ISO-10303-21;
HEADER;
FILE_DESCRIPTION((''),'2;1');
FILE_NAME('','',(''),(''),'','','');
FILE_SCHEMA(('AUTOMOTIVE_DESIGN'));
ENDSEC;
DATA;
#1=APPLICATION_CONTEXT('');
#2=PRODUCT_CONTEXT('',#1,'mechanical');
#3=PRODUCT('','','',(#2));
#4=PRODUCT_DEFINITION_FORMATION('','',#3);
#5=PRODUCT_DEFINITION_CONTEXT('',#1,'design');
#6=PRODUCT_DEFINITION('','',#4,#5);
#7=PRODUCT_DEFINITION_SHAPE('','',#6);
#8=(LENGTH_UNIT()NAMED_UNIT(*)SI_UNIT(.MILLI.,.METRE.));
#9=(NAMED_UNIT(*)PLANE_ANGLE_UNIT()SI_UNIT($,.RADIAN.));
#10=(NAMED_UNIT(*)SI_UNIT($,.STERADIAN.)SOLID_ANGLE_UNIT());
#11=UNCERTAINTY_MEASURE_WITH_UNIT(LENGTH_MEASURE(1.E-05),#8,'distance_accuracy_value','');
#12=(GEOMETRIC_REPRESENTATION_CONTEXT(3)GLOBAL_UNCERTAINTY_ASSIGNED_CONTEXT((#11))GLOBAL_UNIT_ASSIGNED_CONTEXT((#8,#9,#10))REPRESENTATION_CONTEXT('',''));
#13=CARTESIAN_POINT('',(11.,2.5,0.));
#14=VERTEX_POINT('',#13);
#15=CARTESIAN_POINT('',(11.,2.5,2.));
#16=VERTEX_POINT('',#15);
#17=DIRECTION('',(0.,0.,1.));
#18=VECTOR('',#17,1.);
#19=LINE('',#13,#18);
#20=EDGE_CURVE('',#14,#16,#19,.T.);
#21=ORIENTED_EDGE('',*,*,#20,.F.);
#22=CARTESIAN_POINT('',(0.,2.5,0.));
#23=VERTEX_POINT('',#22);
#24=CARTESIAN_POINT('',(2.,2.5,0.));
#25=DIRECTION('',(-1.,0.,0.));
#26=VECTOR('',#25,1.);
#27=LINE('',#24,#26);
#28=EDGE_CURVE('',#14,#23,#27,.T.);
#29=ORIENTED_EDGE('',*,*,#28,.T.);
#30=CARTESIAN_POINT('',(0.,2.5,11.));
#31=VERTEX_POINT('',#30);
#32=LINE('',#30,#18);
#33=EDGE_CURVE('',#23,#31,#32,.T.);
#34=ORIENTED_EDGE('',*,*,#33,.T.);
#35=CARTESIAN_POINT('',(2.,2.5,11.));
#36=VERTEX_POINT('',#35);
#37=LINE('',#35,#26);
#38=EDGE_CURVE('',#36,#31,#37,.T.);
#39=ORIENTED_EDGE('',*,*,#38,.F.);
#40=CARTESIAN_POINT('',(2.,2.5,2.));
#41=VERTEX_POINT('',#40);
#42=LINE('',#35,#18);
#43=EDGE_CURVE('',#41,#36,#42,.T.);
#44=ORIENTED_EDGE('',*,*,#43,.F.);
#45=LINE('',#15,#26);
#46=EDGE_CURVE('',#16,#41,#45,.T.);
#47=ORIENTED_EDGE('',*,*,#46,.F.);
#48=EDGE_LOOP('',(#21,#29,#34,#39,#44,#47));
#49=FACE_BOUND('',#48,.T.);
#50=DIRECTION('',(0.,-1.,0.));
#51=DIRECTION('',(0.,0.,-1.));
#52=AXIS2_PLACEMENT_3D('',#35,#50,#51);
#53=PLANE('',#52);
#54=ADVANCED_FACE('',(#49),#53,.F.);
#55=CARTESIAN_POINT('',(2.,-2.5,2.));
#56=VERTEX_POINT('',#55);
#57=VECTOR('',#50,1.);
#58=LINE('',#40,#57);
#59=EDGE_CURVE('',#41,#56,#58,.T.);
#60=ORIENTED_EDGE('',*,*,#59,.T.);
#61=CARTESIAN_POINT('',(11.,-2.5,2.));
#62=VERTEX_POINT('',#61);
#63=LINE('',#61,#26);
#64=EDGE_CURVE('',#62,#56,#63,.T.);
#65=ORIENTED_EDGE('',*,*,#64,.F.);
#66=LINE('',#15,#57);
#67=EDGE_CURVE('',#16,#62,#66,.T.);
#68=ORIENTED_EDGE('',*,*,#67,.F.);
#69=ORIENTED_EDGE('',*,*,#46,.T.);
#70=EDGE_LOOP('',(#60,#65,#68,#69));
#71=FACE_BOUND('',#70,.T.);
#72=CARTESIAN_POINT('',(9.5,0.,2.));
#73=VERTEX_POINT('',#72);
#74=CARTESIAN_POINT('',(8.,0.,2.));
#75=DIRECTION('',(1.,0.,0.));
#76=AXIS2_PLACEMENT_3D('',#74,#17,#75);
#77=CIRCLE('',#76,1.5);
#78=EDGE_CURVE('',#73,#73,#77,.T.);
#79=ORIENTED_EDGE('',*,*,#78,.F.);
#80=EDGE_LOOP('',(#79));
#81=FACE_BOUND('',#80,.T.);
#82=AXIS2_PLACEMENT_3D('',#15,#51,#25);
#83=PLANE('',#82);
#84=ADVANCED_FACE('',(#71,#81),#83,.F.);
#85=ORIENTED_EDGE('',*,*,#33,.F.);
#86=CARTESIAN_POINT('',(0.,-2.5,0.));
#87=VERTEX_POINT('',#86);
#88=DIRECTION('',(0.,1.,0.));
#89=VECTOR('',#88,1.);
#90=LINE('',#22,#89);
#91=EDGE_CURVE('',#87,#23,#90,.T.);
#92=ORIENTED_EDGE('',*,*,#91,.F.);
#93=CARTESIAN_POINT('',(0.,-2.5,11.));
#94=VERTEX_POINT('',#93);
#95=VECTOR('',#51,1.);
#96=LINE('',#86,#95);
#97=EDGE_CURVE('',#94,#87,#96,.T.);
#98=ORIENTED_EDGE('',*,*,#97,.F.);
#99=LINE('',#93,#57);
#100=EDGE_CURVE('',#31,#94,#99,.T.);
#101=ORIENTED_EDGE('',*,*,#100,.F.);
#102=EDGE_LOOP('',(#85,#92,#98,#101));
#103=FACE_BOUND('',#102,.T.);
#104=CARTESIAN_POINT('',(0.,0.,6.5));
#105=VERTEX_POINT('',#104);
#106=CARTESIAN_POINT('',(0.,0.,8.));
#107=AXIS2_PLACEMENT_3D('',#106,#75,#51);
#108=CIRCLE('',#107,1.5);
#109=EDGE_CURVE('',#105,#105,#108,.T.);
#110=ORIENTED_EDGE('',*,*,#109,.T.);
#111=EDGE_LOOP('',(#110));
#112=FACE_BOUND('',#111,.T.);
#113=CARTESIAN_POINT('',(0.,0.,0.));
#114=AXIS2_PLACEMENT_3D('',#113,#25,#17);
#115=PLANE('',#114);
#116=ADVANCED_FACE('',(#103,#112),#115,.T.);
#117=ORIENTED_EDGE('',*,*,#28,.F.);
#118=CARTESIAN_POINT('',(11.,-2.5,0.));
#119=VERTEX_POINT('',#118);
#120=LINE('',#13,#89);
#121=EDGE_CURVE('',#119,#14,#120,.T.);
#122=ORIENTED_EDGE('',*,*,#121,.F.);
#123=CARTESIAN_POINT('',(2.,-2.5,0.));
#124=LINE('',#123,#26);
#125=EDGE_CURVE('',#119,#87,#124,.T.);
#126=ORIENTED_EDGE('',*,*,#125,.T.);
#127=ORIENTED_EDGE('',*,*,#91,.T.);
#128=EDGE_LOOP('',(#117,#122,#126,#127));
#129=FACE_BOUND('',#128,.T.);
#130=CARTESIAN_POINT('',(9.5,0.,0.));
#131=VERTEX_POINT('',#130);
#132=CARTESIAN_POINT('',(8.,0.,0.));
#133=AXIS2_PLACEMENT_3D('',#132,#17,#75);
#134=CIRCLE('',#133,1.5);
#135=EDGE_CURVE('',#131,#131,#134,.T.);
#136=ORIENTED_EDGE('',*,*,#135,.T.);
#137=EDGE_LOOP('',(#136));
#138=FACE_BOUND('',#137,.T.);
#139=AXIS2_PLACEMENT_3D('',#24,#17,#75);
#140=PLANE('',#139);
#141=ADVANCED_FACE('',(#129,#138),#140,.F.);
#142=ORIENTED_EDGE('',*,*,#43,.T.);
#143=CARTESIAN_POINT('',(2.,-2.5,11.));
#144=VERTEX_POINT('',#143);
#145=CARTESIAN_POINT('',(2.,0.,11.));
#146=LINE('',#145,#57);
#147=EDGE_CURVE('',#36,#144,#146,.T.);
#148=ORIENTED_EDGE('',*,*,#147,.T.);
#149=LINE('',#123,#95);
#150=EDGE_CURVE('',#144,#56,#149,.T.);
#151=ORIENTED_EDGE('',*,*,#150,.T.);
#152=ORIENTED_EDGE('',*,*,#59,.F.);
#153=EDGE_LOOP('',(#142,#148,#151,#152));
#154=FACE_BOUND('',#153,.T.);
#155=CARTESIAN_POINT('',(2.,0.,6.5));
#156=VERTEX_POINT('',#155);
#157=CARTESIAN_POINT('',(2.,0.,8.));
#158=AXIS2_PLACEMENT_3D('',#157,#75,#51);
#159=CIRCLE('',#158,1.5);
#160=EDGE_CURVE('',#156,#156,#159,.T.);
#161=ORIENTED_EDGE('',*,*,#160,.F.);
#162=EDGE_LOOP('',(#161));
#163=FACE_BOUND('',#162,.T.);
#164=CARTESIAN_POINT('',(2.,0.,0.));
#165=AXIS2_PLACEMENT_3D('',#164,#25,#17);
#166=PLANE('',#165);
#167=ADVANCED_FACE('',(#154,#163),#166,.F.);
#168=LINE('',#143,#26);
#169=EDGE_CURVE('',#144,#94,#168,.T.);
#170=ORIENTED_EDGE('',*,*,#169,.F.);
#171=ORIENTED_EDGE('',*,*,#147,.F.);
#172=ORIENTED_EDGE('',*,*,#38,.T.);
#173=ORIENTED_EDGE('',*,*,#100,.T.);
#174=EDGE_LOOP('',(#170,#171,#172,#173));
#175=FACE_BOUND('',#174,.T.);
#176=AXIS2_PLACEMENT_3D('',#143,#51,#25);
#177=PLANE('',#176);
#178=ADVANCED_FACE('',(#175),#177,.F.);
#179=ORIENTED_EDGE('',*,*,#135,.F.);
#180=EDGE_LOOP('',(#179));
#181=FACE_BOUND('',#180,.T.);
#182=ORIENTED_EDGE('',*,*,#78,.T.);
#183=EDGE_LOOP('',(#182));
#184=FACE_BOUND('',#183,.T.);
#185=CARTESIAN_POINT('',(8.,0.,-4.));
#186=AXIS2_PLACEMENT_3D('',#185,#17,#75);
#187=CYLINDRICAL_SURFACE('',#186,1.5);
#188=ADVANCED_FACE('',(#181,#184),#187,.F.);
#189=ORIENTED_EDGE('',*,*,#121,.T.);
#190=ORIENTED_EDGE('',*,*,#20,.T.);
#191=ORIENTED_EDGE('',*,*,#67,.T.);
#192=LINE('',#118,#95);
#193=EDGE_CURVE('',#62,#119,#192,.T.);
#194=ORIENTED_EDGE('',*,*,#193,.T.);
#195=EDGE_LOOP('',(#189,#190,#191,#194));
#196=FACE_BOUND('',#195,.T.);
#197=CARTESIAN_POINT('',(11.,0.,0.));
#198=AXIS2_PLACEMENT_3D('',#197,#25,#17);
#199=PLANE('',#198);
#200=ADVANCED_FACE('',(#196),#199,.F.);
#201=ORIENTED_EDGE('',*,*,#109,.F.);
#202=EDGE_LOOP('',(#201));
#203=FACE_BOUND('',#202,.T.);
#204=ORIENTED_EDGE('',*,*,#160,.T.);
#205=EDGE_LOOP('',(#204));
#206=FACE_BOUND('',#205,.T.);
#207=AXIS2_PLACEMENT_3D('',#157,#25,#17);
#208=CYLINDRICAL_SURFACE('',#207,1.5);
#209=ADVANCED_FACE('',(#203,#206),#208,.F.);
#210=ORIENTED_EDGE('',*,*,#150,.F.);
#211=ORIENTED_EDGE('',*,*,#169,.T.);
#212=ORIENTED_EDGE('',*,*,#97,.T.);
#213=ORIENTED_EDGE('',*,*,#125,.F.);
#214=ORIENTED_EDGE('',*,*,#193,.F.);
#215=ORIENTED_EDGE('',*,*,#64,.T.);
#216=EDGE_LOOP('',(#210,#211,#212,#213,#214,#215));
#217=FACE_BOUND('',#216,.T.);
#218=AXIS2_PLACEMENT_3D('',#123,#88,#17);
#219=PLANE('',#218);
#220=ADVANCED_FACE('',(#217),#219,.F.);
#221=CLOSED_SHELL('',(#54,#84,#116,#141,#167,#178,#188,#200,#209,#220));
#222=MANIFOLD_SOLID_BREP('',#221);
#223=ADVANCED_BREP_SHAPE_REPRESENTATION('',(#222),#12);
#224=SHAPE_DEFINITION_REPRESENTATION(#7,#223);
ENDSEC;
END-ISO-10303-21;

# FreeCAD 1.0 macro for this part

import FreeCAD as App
import Part
import Sketcher
from FreeCAD import Vector


def add_polygon(sketch, points):
    """Adds a closed chain of lines whose ends are joined by coincident constraints."""
    first, n = sketch.GeometryCount, len(points)
    for a, b in zip(points, points[1:] + points[:1]):
        sketch.addGeometry(Part.LineSegment(App.Vector(*a, 0), App.Vector(*b, 0)), False)
    for i in range(n):
        sketch.addConstraint(Sketcher.Constraint("Coincident", first + i, 2, first + (i + 1) % n, 1))

doc = App.newDocument("Part")
params = doc.addObject("Spreadsheet::Sheet", "Params")
for row, (alias, value) in enumerate([
    ("sketch1_diameter", "3 mm"),
    ("sketch1_width", "5 mm"),
    ("sketch1_height", "11 mm"),
    ("pad1_length", "2 mm"),
    ("sketch2_width", "5 mm"),
    ("sketch2_height", "2 mm"),
    ("pad2_length", "9 mm"),
    ("sketch3_diameter", "3 mm"),
    ("pocket1_length", "6 mm"),
], start=1):
    params.set(f"A{row}", alias)
    params.set(f"B{row}", "=" + value)
    params.setAlias(f"B{row}", alias)

body = doc.addObject("PartDesign::Body", "Body")

sketch1 = doc.addObject("Sketcher::SketchObject", "Sketch")
body.addObject(sketch1)
sketch1.AttachmentSupport = (doc.YZ_Plane, [""])
sketch1.MapMode = "FlatFace"
add_polygon(sketch1, [(2.5, 11), (-2.5, 11), (-2.5, 0), (2.5, 0)])
sketch1.addGeometry(Part.Circle(Vector(0, 8, 0), Vector(0, 0, 1), 1.5), False)
sketch1.addConstraint([
    Sketcher.Constraint("Horizontal", 0),
    Sketcher.Constraint("Vertical", 1),
    Sketcher.Constraint("Horizontal", 2),
    Sketcher.Constraint("Vertical", 3),
    Sketcher.Constraint("Symmetric", 1, 2, 2, 2, -1, 1),
    Sketcher.Constraint("PointOnObject", 4, 3, -2),
    Sketcher.Constraint("Diameter", 4, 3.0),
    Sketcher.Constraint("DistanceX", 0, 2, 0, 1, 5.0),
    Sketcher.Constraint("DistanceY", 1, 2, 1, 1, 11.0),
    Sketcher.Constraint("DistanceY", -1, 1, 4, 3, 8.0),
])
sketch1.setExpression("Constraints[10]", "Params.sketch1_diameter")
sketch1.setExpression("Constraints[11]", "Params.sketch1_width")
sketch1.setExpression("Constraints[12]", "Params.sketch1_height")
pad1 = doc.addObject("PartDesign::Pad", "Pad")
body.addObject(pad1)
pad1.Profile = sketch1
pad1.setExpression("Length", "Params.pad1_length")

sketch2 = doc.addObject("Sketcher::SketchObject", "Sketch001")
body.addObject(sketch2)
sketch2.AttachmentSupport = (doc.YZ_Plane, [""])
sketch2.MapMode = "FlatFace"
sketch2.AttachmentOffset = App.Placement(Vector(0, 0, 2), App.Rotation())
add_polygon(sketch2, [(2.5, 2), (-2.5, 2), (-2.5, 0), (2.5, 0)])
sketch2.addConstraint([
    Sketcher.Constraint("Horizontal", 0),
    Sketcher.Constraint("Vertical", 1),
    Sketcher.Constraint("Horizontal", 2),
    Sketcher.Constraint("Vertical", 3),
    Sketcher.Constraint("Symmetric", 1, 2, 2, 2, -1, 1),
    Sketcher.Constraint("DistanceX", 0, 2, 0, 1, 5.0),
    Sketcher.Constraint("DistanceY", 1, 2, 1, 1, 2.0),
])
sketch2.setExpression("Constraints[9]", "Params.sketch2_width")
sketch2.setExpression("Constraints[10]", "Params.sketch2_height")
pad2 = doc.addObject("PartDesign::Pad", "Pad001")
body.addObject(pad2)
pad2.Profile = sketch2
pad2.setExpression("Length", "Params.pad2_length")

sketch3 = doc.addObject("Sketcher::SketchObject", "Sketch002")
body.addObject(sketch3)
sketch3.AttachmentSupport = (doc.XY_Plane, [""])
sketch3.MapMode = "FlatFace"
sketch3.AttachmentOffset = App.Placement(Vector(0, 0, 2), App.Rotation())
sketch3.addGeometry(Part.Circle(Vector(8, 0, 0), Vector(0, 0, 1), 1.5), False)
sketch3.addConstraint([
    Sketcher.Constraint("PointOnObject", 0, 3, -1),
    Sketcher.Constraint("Diameter", 0, 3.0),
    Sketcher.Constraint("DistanceX", -1, 1, 0, 3, 8.0),
])
sketch3.setExpression("Constraints[1]", "Params.sketch3_diameter")
pocket1 = doc.addObject("PartDesign::Pocket", "Pocket")
body.addObject(pocket1)
pocket1.Profile = sketch3
pocket1.setExpression("Length", "Params.pocket1_length")

doc.recompute()
